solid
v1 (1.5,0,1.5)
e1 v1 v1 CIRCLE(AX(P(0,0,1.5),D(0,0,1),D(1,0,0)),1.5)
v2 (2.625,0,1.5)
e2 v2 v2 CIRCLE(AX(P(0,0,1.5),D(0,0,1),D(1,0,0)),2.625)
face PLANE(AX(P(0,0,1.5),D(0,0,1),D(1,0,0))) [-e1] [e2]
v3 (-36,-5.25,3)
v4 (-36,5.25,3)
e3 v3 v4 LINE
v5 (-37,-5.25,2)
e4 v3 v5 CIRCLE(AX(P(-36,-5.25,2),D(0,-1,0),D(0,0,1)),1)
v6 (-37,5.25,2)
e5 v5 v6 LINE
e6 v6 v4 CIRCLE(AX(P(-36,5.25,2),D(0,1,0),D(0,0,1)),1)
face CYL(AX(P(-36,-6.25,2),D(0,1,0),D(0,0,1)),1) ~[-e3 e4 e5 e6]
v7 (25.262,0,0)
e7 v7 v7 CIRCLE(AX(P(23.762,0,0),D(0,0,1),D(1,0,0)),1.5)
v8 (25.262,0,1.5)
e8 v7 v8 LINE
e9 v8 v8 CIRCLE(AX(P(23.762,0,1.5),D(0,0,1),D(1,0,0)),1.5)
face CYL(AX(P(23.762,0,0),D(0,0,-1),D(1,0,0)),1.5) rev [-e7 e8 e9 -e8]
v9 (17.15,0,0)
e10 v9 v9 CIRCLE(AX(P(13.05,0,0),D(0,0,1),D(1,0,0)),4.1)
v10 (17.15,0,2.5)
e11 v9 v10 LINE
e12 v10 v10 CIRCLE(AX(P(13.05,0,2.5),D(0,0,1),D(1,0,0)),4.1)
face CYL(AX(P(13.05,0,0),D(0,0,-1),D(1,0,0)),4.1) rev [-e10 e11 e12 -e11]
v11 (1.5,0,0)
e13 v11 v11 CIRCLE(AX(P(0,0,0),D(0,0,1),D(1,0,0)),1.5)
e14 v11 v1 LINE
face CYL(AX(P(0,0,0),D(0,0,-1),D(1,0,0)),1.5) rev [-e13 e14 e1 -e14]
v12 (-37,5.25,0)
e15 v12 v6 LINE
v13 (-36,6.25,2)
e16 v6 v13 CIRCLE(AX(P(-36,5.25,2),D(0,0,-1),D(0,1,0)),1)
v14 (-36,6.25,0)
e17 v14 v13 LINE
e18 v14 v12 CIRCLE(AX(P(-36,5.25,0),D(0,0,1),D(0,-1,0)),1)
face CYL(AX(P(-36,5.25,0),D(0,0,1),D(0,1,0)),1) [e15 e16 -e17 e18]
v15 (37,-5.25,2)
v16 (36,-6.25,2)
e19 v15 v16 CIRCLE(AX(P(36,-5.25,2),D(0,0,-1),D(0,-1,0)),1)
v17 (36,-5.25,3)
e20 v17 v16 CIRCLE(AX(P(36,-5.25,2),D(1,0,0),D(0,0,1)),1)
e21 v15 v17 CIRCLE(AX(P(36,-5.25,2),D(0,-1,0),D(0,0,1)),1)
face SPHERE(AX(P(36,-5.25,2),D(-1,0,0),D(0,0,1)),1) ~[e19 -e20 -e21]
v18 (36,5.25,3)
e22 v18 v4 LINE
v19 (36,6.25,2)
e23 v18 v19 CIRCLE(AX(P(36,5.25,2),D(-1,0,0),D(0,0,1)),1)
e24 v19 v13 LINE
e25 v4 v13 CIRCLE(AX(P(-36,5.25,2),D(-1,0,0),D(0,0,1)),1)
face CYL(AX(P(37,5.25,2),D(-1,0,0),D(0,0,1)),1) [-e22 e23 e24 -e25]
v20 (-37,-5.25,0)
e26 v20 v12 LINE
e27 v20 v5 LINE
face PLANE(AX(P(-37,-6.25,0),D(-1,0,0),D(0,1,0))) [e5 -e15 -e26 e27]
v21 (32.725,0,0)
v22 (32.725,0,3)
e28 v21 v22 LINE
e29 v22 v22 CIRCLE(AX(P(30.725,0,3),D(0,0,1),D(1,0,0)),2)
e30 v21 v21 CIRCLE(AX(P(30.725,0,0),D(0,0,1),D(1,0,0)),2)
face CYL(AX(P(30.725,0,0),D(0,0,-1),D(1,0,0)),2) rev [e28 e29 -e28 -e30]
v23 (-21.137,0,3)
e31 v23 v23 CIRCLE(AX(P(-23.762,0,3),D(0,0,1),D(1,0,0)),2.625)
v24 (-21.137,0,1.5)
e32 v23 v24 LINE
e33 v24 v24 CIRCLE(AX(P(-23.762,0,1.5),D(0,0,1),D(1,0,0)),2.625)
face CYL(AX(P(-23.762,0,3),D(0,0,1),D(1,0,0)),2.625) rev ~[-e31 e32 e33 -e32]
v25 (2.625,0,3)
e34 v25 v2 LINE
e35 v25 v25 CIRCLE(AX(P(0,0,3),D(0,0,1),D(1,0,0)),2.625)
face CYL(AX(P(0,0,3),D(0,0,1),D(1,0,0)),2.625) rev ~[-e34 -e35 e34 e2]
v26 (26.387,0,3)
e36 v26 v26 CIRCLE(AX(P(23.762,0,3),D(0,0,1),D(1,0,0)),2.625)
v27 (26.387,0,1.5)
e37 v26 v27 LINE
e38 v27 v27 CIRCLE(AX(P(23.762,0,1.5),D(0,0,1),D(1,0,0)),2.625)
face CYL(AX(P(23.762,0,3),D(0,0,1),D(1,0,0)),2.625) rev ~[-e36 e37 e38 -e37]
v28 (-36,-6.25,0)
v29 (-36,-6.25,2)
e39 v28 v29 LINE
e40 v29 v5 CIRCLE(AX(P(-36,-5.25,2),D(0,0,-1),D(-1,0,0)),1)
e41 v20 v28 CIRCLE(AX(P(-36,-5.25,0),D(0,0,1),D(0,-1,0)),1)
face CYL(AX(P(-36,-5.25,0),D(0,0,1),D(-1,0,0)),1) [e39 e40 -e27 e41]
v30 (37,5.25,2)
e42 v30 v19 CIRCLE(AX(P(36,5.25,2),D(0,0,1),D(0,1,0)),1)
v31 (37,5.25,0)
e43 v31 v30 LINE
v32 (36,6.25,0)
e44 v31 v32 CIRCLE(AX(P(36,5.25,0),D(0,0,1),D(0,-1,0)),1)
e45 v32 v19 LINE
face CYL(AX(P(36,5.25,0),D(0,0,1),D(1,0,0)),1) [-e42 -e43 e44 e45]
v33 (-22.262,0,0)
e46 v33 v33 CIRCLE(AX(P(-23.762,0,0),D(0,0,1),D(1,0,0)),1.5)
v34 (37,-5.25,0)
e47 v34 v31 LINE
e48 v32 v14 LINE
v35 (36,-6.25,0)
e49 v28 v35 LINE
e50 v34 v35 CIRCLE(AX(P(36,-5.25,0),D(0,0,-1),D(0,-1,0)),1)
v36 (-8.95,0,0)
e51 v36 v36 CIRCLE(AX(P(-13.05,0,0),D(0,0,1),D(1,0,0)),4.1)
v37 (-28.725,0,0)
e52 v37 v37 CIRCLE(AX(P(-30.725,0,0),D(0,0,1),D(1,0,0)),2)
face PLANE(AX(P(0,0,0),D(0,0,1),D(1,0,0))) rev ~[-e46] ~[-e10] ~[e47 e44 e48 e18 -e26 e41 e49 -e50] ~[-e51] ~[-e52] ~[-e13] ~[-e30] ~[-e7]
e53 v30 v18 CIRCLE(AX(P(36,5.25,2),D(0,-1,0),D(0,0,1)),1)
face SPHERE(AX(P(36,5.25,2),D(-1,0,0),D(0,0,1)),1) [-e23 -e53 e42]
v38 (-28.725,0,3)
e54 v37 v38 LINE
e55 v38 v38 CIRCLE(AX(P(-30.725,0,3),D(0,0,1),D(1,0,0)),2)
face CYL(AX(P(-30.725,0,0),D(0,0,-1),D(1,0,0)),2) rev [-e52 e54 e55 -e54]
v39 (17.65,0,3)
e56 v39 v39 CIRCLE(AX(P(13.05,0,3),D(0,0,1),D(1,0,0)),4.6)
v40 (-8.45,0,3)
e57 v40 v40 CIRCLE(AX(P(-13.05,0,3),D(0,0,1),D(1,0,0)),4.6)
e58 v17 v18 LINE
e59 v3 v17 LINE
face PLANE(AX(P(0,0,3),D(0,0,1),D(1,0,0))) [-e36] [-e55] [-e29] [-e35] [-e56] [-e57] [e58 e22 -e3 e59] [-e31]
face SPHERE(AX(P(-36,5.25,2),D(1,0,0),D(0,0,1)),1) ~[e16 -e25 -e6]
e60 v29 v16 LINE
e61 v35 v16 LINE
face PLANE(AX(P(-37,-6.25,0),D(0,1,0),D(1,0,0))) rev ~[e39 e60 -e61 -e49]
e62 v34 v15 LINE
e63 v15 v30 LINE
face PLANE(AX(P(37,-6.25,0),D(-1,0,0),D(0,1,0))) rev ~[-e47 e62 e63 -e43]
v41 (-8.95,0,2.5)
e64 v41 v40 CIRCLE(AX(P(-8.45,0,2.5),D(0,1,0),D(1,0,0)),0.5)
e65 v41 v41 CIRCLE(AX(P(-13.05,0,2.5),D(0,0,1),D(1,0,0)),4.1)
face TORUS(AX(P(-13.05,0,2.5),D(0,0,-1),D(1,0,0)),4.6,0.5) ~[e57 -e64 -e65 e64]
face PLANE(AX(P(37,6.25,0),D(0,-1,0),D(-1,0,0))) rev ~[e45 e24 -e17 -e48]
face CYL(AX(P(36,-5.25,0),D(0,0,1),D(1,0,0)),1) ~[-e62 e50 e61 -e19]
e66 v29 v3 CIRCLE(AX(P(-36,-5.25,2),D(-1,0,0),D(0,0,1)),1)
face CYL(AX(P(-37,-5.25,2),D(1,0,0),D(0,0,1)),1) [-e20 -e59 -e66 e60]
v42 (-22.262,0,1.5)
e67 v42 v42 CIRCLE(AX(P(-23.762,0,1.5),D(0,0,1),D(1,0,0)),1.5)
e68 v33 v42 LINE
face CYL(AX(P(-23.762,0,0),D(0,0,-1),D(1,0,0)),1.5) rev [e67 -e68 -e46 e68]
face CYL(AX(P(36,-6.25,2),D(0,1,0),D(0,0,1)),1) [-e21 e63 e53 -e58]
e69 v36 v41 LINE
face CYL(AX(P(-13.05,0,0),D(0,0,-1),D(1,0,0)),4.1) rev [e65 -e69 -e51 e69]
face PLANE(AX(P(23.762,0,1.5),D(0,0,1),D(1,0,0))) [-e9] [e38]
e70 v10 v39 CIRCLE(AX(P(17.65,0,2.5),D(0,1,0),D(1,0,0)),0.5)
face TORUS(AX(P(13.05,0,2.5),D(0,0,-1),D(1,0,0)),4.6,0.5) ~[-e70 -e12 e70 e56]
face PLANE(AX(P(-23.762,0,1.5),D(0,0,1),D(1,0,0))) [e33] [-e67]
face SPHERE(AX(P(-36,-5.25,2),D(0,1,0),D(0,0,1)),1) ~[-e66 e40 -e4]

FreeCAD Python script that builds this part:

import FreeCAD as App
import Part
import Sketcher

V = App.Vector


def edges_at(feature, points):
    """Names of the edges that pass closest to the given points."""
    edges = feature.Shape.Edges
    near = lambda p: min(range(len(edges)), key=lambda i: edges[i].distToShape(Part.Vertex(*p))[0])
    return sorted({f"Edge{near(p) + 1}" for p in points})


def add_polygon(sketch, points):
    """Adds a closed chain of lines whose ends are joined by coincident constraints."""
    first, n = sketch.GeometryCount, len(points)
    for a, b in zip(points, points[1:] + points[:1]):
        sketch.addGeometry(Part.LineSegment(App.Vector(*a, 0), App.Vector(*b, 0)), False)
    for i in range(n):
        sketch.addConstraint(Sketcher.Constraint("Coincident", first + i, 2, first + (i + 1) % n, 1))

doc = App.newDocument("Part")
body = doc.addObject("PartDesign::Body", "Body")

sketch1 = body.newObject("Sketcher::SketchObject", "Sketch")
sketch1.AttachmentSupport = (doc.getObject("XY_Plane"), [""])
sketch1.MapMode = "FlatFace"
add_polygon(sketch1, [(37, -6.2), (37, 6.2), (-37, 6.2), (-37, -6.2)])
sketch1.addGeometry(Part.Circle(V(-30.7, 0, 0), V(0, 0, 1), 2), False)
sketch1.addGeometry(Part.Circle(V(-23.8, 0, 0), V(0, 0, 1), 1.5), False)
sketch1.addGeometry(Part.Circle(V(-13.1, 0, 0), V(0, 0, 1), 4.1), False)
sketch1.addGeometry(Part.Circle(V(0, 0, 0), V(0, 0, 1), 1.5), False)
sketch1.addGeometry(Part.Circle(V(13.1, 0, 0), V(0, 0, 1), 4.1), False)
sketch1.addGeometry(Part.Circle(V(23.8, 0, 0), V(0, 0, 1), 1.5), False)
sketch1.addGeometry(Part.Circle(V(30.7, 0, 0), V(0, 0, 1), 2), False)
sketch1.addConstraint([
    Sketcher.Constraint("Vertical", 0),
    Sketcher.Constraint("Horizontal", 1),
    Sketcher.Constraint("Vertical", 2),
    Sketcher.Constraint("Horizontal", 3),
    Sketcher.Constraint("Coincident", 7, 3, -1, 1),
    Sketcher.Constraint("Equal", 5, 7),
    Sketcher.Constraint("Equal", 6, 8),
    Sketcher.Constraint("Equal", 7, 9),
    Sketcher.Constraint("Equal", 4, 10),
    Sketcher.Constraint("Symmetric", 6, 3, 8, 3, -1, 1),
    Sketcher.Constraint("Symmetric", 5, 3, 9, 3, -1, 1),
    Sketcher.Constraint("Symmetric", 4, 3, 10, 3, -1, 1),
    Sketcher.Constraint("Symmetric", 0, 2, 2, 2, -1, 1),
    Sketcher.Constraint("PointOnObject", 4, 3, -1),
    Sketcher.Constraint("PointOnObject", 5, 3, -1),
    Sketcher.Constraint("PointOnObject", 6, 3, -1),
    Sketcher.Constraint("Diameter", 4, 4.0),
    Sketcher.Constraint("Diameter", 5, 3.0),
    Sketcher.Constraint("Diameter", 6, 8.2),
    Sketcher.Constraint("DistanceX", 1, 2, 1, 1, 74.0),
    Sketcher.Constraint("DistanceY", 0, 1, 0, 2, 12.5),
    Sketcher.Constraint("DistanceX", 6, 3, 8, 3, 26.1),
    Sketcher.Constraint("DistanceX", 4, 3, -1, 1, 30.725),
    Sketcher.Constraint("DistanceX", 5, 3, -1, 1, 23.762),
])
pad1 = body.newObject("PartDesign::Pad", "Pad")
pad1.Profile = sketch1
pad1.Length = 3
doc.recompute()

fillet = body.newObject("PartDesign::Fillet", "Fillet")
fillet.Base = (pad1, edges_at(pad1, [(-17.15, 0, 3), (8.95, 0, 3)]))
fillet.Radius = 0.5

sketch2 = body.newObject("Sketcher::SketchObject", "Sketch001")
sketch2.AttachmentSupport = (doc.getObject("XY_Plane"), [""])
sketch2.MapMode = "FlatFace"
sketch2.AttachmentOffset = App.Placement(V(0, 0, 3), App.Rotation())
sketch2.addGeometry([
    Part.Circle(V(-23.8, 0, 0), V(0, 0, 1), 2.6),
    Part.Circle(V(-23.8, 0, 0), V(0, 0, 1), 1.5),
    Part.Circle(V(0, 0, 0), V(0, 0, 1), 2.6),
    Part.Circle(V(0, 0, 0), V(0, 0, 1), 1.5),
    Part.Circle(V(23.8, 0, 0), V(0, 0, 1), 2.6),
    Part.Circle(V(23.8, 0, 0), V(0, 0, 1), 1.5),
], False)
sketch2.addConstraint([
    Sketcher.Constraint("Coincident", 2, 3, -1, 1),
    Sketcher.Constraint("Coincident", 3, 3, -1, 1),
    Sketcher.Constraint("Coincident", 1, 3, 0, 3),
    Sketcher.Constraint("Coincident", 5, 3, 4, 3),
    Sketcher.Constraint("Equal", 0, 2),
    Sketcher.Constraint("Equal", 1, 3),
    Sketcher.Constraint("Equal", 2, 4),
    Sketcher.Constraint("Equal", 3, 5),
    Sketcher.Constraint("Symmetric", 0, 3, 4, 3, -1, 1),
    Sketcher.Constraint("PointOnObject", 0, 3, -1),
    Sketcher.Constraint("Diameter", 1, 3.0),
    Sketcher.Constraint("Diameter", 0, 5.25),
    Sketcher.Constraint("DistanceX", 0, 3, -1, 1, 23.762),
])
pocket1 = body.newObject("PartDesign::Pocket", "Pocket")
pocket1.Profile = sketch2
pocket1.Length = 1.5
doc.recompute()

fillet2 = body.newObject("PartDesign::Fillet", "Fillet001")
fillet2.Base = (pocket1, edges_at(pocket1, [
    (0, 6.25, 3),
    (-37, 0, 3),
    (0, -6.25, 3),
    (37, 0, 3),
    (-37, 6.25, 1.5),
    (-37, -6.25, 1.5),
    (37, 6.25, 1.5),
    (37, -6.25, 1.5),
]))
fillet2.Radius = 1

doc.recompute()
